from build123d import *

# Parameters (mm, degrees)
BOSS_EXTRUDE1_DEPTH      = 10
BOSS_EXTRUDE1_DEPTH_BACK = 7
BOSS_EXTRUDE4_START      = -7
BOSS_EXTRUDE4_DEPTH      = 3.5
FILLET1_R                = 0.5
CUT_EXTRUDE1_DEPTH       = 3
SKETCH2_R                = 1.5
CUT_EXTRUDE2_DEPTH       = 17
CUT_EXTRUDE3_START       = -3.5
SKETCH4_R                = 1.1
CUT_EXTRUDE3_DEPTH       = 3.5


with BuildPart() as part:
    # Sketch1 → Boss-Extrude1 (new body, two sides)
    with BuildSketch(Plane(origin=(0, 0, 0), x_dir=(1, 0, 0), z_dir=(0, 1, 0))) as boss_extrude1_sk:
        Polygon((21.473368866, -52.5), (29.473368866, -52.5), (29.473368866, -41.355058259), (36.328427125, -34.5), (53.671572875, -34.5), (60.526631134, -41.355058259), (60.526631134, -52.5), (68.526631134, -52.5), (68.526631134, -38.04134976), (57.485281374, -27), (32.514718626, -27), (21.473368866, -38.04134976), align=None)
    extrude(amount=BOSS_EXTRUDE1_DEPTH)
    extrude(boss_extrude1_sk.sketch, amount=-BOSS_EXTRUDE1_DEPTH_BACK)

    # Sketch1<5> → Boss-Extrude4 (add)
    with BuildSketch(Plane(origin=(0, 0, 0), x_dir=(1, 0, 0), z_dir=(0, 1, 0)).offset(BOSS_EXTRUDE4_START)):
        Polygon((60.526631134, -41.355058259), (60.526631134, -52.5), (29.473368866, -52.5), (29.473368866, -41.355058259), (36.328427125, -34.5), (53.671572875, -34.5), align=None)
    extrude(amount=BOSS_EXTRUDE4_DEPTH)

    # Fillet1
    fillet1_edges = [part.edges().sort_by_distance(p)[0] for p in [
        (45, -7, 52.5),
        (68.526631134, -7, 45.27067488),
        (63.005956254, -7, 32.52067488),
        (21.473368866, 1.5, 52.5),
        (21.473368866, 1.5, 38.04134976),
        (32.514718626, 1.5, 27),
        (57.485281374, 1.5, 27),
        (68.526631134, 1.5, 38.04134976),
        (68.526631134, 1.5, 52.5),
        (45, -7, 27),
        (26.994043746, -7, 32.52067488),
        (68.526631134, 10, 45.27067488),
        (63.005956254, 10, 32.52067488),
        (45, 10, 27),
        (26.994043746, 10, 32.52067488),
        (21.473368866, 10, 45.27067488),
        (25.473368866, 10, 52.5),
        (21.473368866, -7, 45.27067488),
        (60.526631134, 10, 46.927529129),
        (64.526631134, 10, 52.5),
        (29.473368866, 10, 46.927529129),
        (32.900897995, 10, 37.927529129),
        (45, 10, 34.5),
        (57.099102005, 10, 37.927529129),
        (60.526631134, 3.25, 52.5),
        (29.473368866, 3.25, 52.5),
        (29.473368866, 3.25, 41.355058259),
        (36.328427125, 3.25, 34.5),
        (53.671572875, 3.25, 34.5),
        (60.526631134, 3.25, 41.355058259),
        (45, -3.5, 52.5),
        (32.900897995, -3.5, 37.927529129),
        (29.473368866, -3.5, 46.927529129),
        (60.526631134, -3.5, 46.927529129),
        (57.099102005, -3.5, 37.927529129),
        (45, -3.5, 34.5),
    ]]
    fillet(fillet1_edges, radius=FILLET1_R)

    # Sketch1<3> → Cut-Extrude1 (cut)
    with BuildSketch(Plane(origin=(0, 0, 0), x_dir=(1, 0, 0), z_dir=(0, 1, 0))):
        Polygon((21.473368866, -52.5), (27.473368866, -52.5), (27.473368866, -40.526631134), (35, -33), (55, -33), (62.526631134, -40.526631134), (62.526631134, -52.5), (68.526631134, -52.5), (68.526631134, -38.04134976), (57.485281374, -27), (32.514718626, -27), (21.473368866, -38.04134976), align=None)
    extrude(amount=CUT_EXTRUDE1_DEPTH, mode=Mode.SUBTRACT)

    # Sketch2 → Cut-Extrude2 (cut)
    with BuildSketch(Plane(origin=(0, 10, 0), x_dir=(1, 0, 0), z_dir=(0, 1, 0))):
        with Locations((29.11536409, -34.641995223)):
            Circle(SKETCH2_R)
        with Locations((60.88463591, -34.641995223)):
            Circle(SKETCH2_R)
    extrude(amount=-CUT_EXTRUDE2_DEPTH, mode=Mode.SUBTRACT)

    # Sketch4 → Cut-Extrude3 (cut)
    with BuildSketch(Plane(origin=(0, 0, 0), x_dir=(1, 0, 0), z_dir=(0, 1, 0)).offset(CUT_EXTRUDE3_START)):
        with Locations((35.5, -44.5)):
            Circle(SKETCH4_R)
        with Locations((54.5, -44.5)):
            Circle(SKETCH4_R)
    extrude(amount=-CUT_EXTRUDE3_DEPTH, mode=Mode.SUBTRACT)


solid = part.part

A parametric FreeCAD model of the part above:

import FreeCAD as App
import Part
import Sketcher

V = App.Vector


def add_polygon(sketch, points):
    """Adds a closed chain of lines whose ends are joined by coincident constraints."""
    first, n = sketch.GeometryCount, len(points)
    for a, b in zip(points, points[1:] + points[:1]):
        sketch.addGeometry(Part.LineSegment(App.Vector(*a, 0), App.Vector(*b, 0)), False)
    for i in range(n):
        sketch.addConstraint(Sketcher.Constraint("Coincident", first + i, 2, first + (i + 1) % n, 1))

doc = App.newDocument("Part")
body = doc.addObject("PartDesign::Body", "Body")

sketch1 = body.newObject("Sketcher::SketchObject", "Sketch")
sketch1.AttachmentSupport = (doc.getObject("XZ_Plane"), [""])
sketch1.MapMode = "FlatFace"
add_polygon(sketch1, [(21, 52), (29, 52), (29, 41), (36, 34), (54, 34), (61, 41), (61, 52), (69, 52), (69, 38), (57, 27), (33, 27), (21, 38)])
sketch1.addConstraint([
    Sketcher.Constraint("Horizontal", 0),
    Sketcher.Constraint("Vertical", 1),
    Sketcher.Constraint("Horizontal", 3),
    Sketcher.Constraint("Vertical", 5),
    Sketcher.Constraint("Horizontal", 6),
    Sketcher.Constraint("Vertical", 7),
    Sketcher.Constraint("Horizontal", 9),
    Sketcher.Constraint("Vertical", 11),
    Sketcher.Constraint("Perpendicular", 2, 4),
    Sketcher.Constraint("Parallel", 4, 8),
    Sketcher.Constraint("Perpendicular", 8, 10),
    Sketcher.Constraint("Horizontal", 1, 2, 4, 2),
    Sketcher.Constraint("Horizontal", 0, 2, 5, 2),
    Sketcher.Constraint("Horizontal", 7, 2, 10, 2),
    Sketcher.Constraint("Equal", 0, 6),
    Sketcher.Constraint("Equal", 2, 4),
    Sketcher.Constraint("DistanceX", 0, 1, 0, 2, 8.0),
    Sketcher.Constraint("DistanceY", -1, 1, 8, 2, 27.0),
    Sketcher.Constraint("DistanceY", 2, 2, 0, 2, 18.0),
    Sketcher.Constraint("DistanceY", -1, 1, 0, 2, 52.5),
    Sketcher.Constraint("DistanceY", 1, 2, 1, 1, 11.144942),
    Sketcher.Constraint("DistanceY", 7, 2, 7, 1, 14.45865),
    Sketcher.Constraint("DistanceX", 3, 1, 3, 2, 17.343146),
    Sketcher.Constraint("DistanceX", -1, 1, 0, 2, 29.473369),
])
pad1 = body.newObject("PartDesign::Pad", "Pad")
pad1.Profile = sketch1
pad1.Type = "TwoLengths"
pad1.Length = 10
pad1.Length2 = 7
pad1.Reversed = True

sketch2 = body.newObject("Sketcher::SketchObject", "Sketch001")
sketch2.AttachmentSupport = (doc.getObject("XZ_Plane"), [""])
sketch2.MapMode = "FlatFace"
sketch2.AttachmentOffset = App.Placement(V(0, 0, 7), App.Rotation())
add_polygon(sketch2, [(61, 52), (61, 41), (54, 34), (36, 34), (29, 41), (29, 52)])
sketch2.addConstraint([
    Sketcher.Constraint("Vertical", 0),
    Sketcher.Constraint("Horizontal", 2),
    Sketcher.Constraint("Vertical", 4),
    Sketcher.Constraint("Horizontal", 5),
    Sketcher.Constraint("Perpendicular", 1, 3),
    Sketcher.Constraint("Horizontal", 0, 2, 3, 2),
    Sketcher.Constraint("Equal", 1, 3),
    Sketcher.Constraint("DistanceY", 2, 2, 4, 2, 18.0),
    Sketcher.Constraint("DistanceY", -1, 1, 1, 2, 34.5),
    Sketcher.Constraint("DistanceY", 0, 2, 0, 1, 11.144942),
    Sketcher.Constraint("DistanceX", 2, 2, 2, 1, 17.343146),
    Sketcher.Constraint("DistanceX", -1, 1, 0, 2, 60.526631),
])
pad2 = body.newObject("PartDesign::Pad", "Pad001")
pad2.Profile = sketch2
pad2.Length = 3.5
pad2.Reversed = True
doc.recompute()

fillet = body.newObject("PartDesign::Fillet", "Fillet")
fillet.Base = (pad2, ["Edge1"])
fillet.UseAllEdges = True
fillet.Radius = 0.5

sketch3 = body.newObject("Sketcher::SketchObject", "Sketch002")
sketch3.AttachmentSupport = (doc.getObject("XZ_Plane"), [""])
sketch3.MapMode = "FlatFace"
add_polygon(sketch3, [(21, 52), (27, 52), (27, 41), (35, 33), (55, 33), (63, 41), (63, 52), (69, 52), (69, 38), (57, 27), (33, 27), (21, 38)])
sketch3.addConstraint([
    Sketcher.Constraint("Horizontal", 0),
    Sketcher.Constraint("Vertical", 1),
    Sketcher.Constraint("Horizontal", 3),
    Sketcher.Constraint("Vertical", 5),
    Sketcher.Constraint("Horizontal", 6),
    Sketcher.Constraint("Vertical", 7),
    Sketcher.Constraint("Horizontal", 9),
    Sketcher.Constraint("Vertical", 11),
    Sketcher.Constraint("Perpendicular", 2, 4),
    Sketcher.Constraint("Parallel", 4, 8),
    Sketcher.Constraint("Perpendicular", 8, 10),
    Sketcher.Constraint("Horizontal", 1, 2, 4, 2),
    Sketcher.Constraint("Horizontal", 0, 2, 5, 2),
    Sketcher.Constraint("Horizontal", 7, 2, 10, 2),
    Sketcher.Constraint("Equal", 0, 6),
    Sketcher.Constraint("Equal", 2, 4),
    Sketcher.Constraint("DistanceX", 0, 1, 0, 2, 6.0),
    Sketcher.Constraint("DistanceX", 3, 1, 3, 2, 20.0),
    Sketcher.Constraint("DistanceX", -1, 1, 2, 2, 35.0),
    Sketcher.Constraint("DistanceY", -1, 1, 2, 2, 33.0),
    Sketcher.Constraint("DistanceY", -1, 1, 8, 2, 27.0),
    Sketcher.Constraint("DistanceY", -1, 1, 0, 2, 52.5),
    Sketcher.Constraint("DistanceY", 1, 2, 1, 1, 11.973369),
    Sketcher.Constraint("DistanceY", 7, 2, 7, 1, 14.45865),
])
pocket1 = body.newObject("PartDesign::Pocket", "Pocket")
pocket1.Profile = sketch3
pocket1.Length = 3

sketch4 = body.newObject("Sketcher::SketchObject", "Sketch003")
sketch4.AttachmentSupport = (doc.getObject("XZ_Plane"), [""])
sketch4.MapMode = "FlatFace"
sketch4.AttachmentOffset = App.Placement(V(0, 0, -10), App.Rotation())
sketch4.addGeometry([
    Part.Circle(V(29.1, 34.6, 0), V(0, 0, 1), 1.5),
    Part.Circle(V(60.9, 34.6, 0), V(0, 0, 1), 1.5),
], False)
sketch4.addConstraint([
    Sketcher.Constraint("Equal", 0, 1),
    Sketcher.Constraint("Horizontal", 0, 3, 1, 3),
    Sketcher.Constraint("Diameter", 0, 3.0),
    Sketcher.Constraint("DistanceX", 0, 3, 1, 3, 31.769272),
    Sketcher.Constraint("DistanceX", -1, 1, 0, 3, 29.115364),
    Sketcher.Constraint("DistanceY", -1, 1, 0, 3, 34.641995),
])
pocket2 = body.newObject("PartDesign::Pocket", "Pocket001")
pocket2.Profile = sketch4
pocket2.Length = 17
pocket2.Reversed = True

sketch5 = body.newObject("Sketcher::SketchObject", "Sketch004")
sketch5.AttachmentSupport = (doc.getObject("XZ_Plane"), [""])
sketch5.MapMode = "FlatFace"
sketch5.AttachmentOffset = App.Placement(V(0, 0, 3.5), App.Rotation())
sketch5.addGeometry([
    Part.Circle(V(35.5, 44.5, 0), V(0, 0, 1), 1.1),
    Part.Circle(V(54.5, 44.5, 0), V(0, 0, 1), 1.1),
], False)
sketch5.addConstraint([
    Sketcher.Constraint("Equal", 0, 1),
    Sketcher.Constraint("Horizontal", 0, 3, 1, 3),
    Sketcher.Constraint("Diameter", 0, 2.2),
    Sketcher.Constraint("DistanceX", 0, 3, 1, 3, 19.0),
    Sketcher.Constraint("DistanceX", -1, 1, 0, 3, 35.5),
    Sketcher.Constraint("DistanceY", -1, 1, 0, 3, 44.5),
])
pocket3 = body.newObject("PartDesign::Pocket", "Pocket002")
pocket3.Profile = sketch5
pocket3.Length = 3.5
pocket3.Reversed = True

doc.recompute()
